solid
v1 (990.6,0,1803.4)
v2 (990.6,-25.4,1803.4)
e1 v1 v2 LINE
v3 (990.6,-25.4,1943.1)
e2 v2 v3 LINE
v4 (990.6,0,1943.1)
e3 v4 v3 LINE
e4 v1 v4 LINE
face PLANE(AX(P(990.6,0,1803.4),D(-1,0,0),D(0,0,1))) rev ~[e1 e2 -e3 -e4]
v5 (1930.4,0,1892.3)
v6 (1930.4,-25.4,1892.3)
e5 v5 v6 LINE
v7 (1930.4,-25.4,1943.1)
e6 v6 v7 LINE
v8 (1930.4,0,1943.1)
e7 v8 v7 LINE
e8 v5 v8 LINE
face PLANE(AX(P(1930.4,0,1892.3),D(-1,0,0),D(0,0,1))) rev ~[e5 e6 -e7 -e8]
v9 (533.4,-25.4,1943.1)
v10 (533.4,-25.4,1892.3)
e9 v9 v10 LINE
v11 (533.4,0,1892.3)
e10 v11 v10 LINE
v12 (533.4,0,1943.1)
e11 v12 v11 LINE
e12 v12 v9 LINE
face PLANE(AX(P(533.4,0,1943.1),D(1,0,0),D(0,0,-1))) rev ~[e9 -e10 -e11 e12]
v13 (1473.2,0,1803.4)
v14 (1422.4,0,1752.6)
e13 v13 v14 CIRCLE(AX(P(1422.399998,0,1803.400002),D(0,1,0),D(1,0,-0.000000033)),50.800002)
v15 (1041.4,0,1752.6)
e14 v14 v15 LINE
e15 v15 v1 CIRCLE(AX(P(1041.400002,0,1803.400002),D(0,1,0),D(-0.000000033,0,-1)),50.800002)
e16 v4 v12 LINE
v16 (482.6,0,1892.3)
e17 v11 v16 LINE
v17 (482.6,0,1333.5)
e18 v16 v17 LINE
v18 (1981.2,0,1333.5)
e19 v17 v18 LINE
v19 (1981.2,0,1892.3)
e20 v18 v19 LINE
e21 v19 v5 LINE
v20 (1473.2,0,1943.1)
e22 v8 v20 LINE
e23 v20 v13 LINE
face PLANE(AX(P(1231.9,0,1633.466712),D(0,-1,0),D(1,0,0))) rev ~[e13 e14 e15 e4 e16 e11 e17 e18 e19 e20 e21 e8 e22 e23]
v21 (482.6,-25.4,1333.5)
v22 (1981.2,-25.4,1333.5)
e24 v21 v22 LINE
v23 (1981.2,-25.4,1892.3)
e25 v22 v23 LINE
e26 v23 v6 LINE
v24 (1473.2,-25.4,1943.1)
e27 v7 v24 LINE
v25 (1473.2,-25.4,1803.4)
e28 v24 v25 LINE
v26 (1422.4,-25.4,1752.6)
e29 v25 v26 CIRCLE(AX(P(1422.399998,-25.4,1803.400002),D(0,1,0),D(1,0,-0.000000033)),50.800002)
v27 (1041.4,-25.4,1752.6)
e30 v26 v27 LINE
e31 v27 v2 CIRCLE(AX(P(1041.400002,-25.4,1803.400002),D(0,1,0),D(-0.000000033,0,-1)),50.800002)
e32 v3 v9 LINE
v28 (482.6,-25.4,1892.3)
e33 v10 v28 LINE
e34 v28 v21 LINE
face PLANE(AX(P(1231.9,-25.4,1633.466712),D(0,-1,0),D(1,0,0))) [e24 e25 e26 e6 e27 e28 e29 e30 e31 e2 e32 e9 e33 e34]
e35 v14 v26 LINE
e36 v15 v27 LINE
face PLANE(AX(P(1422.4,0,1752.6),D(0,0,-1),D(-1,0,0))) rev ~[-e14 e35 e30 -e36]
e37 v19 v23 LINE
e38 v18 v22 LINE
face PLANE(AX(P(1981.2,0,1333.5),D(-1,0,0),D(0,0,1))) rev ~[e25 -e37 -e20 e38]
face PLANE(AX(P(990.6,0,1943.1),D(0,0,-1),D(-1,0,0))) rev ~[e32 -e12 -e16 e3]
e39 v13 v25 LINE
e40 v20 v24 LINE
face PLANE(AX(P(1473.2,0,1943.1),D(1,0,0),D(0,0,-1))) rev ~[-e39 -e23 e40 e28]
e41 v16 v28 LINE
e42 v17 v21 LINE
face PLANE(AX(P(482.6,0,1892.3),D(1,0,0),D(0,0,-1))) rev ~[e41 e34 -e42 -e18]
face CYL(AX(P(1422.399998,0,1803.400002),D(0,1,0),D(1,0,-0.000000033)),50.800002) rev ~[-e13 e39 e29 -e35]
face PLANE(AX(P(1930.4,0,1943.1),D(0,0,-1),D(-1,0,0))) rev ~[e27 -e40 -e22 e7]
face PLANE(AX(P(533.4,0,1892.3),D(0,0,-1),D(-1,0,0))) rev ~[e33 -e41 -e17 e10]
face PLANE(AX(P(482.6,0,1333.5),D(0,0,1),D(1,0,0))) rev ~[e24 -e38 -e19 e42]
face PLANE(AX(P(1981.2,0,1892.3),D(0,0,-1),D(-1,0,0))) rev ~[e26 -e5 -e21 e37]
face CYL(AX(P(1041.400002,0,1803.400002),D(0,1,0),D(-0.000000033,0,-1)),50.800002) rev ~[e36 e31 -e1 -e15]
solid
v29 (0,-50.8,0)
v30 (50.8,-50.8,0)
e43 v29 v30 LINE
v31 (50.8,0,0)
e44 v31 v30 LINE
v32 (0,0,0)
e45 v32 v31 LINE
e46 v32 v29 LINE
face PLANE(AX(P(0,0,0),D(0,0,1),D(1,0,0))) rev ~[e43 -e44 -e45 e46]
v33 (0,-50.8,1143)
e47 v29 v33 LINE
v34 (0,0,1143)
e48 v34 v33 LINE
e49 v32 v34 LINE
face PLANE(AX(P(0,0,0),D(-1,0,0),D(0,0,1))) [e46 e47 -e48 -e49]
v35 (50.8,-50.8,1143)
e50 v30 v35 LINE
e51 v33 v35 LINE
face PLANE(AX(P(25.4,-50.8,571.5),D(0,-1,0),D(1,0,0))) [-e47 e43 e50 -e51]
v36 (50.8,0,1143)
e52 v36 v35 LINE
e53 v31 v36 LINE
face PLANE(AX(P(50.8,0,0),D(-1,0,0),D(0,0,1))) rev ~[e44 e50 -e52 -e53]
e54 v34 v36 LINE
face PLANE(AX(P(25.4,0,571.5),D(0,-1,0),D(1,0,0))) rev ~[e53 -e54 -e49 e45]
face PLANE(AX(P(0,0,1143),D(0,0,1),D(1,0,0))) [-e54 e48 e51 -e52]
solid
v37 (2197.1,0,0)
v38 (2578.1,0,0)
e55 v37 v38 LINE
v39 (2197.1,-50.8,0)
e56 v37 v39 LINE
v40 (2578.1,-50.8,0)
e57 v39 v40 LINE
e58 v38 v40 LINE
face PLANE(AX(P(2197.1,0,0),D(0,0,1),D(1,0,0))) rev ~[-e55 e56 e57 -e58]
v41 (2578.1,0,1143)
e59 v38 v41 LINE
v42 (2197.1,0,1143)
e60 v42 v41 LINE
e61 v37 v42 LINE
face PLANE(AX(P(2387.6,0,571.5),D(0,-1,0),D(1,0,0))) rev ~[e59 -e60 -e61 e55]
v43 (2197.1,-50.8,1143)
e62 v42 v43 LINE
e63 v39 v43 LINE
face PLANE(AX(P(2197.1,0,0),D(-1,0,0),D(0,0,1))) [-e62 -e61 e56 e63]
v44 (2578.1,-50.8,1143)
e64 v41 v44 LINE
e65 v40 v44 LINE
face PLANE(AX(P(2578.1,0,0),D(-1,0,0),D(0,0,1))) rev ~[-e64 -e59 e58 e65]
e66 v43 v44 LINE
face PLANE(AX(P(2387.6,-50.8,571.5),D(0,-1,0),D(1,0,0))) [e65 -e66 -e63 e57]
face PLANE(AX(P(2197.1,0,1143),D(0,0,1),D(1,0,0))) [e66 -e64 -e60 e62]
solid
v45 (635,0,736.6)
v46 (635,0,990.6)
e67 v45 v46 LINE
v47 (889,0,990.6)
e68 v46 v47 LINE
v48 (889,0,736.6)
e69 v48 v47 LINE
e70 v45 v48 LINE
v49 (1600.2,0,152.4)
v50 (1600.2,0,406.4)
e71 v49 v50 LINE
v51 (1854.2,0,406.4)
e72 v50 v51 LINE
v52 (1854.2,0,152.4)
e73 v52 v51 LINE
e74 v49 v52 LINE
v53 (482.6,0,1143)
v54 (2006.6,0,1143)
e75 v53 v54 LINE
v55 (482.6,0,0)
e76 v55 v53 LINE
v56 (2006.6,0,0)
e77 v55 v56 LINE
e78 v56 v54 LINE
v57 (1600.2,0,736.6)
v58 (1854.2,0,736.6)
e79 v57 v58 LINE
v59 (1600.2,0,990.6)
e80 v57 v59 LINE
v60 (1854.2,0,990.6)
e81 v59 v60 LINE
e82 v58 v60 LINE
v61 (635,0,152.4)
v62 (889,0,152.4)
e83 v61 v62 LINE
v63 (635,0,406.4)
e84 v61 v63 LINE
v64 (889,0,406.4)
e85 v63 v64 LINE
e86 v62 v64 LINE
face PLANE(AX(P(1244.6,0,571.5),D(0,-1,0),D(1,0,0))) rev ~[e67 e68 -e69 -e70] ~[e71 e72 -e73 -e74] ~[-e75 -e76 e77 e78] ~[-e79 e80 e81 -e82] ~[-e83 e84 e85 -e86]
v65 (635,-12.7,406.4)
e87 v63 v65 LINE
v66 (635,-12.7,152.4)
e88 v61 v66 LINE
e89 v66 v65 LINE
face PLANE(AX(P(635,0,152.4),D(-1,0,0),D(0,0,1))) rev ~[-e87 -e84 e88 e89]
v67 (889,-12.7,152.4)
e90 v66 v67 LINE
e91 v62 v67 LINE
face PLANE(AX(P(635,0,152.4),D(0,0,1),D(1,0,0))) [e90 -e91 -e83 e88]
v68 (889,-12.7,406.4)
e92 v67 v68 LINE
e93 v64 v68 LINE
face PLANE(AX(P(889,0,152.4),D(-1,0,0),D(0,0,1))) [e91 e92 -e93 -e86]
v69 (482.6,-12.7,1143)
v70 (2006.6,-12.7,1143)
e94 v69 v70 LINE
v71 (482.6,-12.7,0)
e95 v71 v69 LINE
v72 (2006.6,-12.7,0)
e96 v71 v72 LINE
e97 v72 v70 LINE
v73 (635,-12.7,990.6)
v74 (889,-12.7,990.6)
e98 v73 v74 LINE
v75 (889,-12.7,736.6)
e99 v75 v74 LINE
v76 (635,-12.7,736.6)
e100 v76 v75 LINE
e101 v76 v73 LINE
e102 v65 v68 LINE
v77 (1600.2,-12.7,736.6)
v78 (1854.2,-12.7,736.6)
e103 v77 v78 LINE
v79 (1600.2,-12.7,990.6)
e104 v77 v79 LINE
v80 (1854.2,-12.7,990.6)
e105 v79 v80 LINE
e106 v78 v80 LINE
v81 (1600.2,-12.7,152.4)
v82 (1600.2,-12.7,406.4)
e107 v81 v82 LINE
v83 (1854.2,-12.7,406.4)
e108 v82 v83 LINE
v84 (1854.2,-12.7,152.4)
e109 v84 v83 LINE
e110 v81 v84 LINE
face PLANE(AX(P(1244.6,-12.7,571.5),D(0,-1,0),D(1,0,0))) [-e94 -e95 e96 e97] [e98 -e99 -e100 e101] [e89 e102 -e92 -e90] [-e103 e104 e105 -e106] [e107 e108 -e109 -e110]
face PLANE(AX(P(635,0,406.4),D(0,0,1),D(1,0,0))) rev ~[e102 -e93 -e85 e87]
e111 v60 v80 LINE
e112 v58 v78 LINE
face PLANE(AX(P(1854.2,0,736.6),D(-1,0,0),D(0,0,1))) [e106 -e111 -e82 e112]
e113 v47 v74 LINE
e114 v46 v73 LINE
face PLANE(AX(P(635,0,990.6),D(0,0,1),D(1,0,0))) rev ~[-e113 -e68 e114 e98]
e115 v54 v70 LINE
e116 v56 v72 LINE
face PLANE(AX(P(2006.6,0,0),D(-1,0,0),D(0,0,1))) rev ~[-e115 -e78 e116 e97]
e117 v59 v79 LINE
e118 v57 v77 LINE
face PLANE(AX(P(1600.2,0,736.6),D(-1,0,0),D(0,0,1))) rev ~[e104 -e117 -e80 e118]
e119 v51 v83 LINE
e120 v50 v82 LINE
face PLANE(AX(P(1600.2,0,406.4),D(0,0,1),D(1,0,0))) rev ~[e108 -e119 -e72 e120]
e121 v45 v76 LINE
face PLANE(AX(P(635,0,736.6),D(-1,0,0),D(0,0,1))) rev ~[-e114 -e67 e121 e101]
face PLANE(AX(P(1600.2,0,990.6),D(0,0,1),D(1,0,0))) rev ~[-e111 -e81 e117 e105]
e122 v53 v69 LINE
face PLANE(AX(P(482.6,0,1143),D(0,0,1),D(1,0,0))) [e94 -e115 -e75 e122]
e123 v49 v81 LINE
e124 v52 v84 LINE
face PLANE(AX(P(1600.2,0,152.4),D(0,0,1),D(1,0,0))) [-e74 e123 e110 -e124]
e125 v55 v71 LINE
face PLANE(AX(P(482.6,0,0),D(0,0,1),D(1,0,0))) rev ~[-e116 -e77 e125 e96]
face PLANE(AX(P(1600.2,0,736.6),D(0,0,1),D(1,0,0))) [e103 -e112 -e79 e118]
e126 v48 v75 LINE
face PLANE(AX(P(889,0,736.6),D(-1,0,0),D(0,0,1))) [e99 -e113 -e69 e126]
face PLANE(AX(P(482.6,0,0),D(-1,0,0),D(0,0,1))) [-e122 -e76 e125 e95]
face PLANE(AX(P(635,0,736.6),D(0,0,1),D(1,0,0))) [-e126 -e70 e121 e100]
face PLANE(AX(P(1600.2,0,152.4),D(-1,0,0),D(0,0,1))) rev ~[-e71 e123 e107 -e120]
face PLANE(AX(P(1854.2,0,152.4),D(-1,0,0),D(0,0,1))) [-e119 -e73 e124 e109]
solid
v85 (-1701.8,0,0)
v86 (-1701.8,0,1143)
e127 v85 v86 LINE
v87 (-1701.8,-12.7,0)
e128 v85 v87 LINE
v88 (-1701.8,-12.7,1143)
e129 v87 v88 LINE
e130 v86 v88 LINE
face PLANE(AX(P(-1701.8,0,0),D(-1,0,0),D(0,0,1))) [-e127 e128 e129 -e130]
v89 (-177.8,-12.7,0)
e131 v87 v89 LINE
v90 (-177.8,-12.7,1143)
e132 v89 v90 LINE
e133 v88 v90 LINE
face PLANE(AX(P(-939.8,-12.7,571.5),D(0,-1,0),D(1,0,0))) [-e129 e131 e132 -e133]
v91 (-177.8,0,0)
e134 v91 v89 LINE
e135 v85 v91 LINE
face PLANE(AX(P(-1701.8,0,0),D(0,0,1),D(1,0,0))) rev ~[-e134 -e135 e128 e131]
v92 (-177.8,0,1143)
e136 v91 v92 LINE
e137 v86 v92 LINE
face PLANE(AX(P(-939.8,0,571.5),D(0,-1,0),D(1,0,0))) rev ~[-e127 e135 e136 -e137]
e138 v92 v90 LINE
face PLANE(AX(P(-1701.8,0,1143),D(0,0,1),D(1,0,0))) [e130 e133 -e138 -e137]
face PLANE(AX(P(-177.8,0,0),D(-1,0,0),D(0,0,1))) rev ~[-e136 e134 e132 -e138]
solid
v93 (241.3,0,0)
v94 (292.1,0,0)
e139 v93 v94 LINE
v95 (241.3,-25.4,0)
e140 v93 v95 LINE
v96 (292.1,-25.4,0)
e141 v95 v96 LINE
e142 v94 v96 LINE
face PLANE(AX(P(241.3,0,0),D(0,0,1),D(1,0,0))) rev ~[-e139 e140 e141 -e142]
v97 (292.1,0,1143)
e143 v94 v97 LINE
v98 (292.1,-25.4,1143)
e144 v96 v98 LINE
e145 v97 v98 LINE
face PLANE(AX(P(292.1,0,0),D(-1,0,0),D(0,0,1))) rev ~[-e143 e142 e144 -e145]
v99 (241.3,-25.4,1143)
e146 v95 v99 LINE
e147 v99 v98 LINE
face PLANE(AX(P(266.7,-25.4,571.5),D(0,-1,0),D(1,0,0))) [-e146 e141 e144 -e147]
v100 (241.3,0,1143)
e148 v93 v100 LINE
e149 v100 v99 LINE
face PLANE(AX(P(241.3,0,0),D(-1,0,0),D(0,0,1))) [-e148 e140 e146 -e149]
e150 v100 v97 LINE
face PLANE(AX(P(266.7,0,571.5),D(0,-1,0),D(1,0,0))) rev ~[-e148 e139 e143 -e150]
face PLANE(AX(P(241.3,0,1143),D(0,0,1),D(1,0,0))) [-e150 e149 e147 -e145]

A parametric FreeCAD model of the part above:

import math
import FreeCAD as App
import Part
import Sketcher

V = App.Vector
Q = App.Units.Quantity


def add_polygon(sketch, points):
    """Adds a closed chain of lines whose ends are joined by coincident constraints."""
    first, n = sketch.GeometryCount, len(points)
    for a, b in zip(points, points[1:] + points[:1]):
        sketch.addGeometry(Part.LineSegment(App.Vector(*a, 0), App.Vector(*b, 0)), False)
    for i in range(n):
        sketch.addConstraint(Sketcher.Constraint("Coincident", first + i, 2, first + (i + 1) % n, 1))

doc = App.newDocument("Part")
body = doc.addObject("PartDesign::Body", "Body")

sketch1 = body.newObject("Sketcher::SketchObject", "Sketch")
sketch1.AttachmentSupport = (doc.getObject("XZ_Plane"), [""])
sketch1.MapMode = "FlatFace"
add_polygon(sketch1, [(0, 1143), (0, 0), (50.8, 0), (50.8, 1143)])
sketch1.addConstraint([
    Sketcher.Constraint("Vertical", 0),
    Sketcher.Constraint("Horizontal", 1),
    Sketcher.Constraint("Vertical", 2),
    Sketcher.Constraint("Horizontal", 3),
    Sketcher.Constraint("Coincident", 0, 2, -1, 1),
    Sketcher.Constraint("DistanceX", 1, 1, 1, 2, Q("2 in")),
    Sketcher.Constraint("DistanceY", 0, 2, 0, 1, Q("45 in")),
])
pad1 = body.newObject("PartDesign::Pad", "Pad")
pad1.Profile = sketch1
pad1.Length = Q("2 in")
body2 = doc.addObject("PartDesign::Body", "Body001")

sketch2 = body2.newObject("Sketcher::SketchObject", "Sketch001")
sketch2.AttachmentSupport = (doc.getObject("XZ_Plane001"), [""])
sketch2.MapMode = "FlatFace"
add_polygon(sketch2, [(241.3, 1143), (241.3, 0), (292.1, 0), (292.1, 1143)])
sketch2.addConstraint([
    Sketcher.Constraint("Vertical", 0),
    Sketcher.Constraint("Horizontal", 1),
    Sketcher.Constraint("Vertical", 2),
    Sketcher.Constraint("Horizontal", 3),
    Sketcher.Constraint("PointOnObject", 0, 2, -1),
    Sketcher.Constraint("DistanceX", 1, 1, 1, 2, Q("2 in")),
    Sketcher.Constraint("DistanceY", 0, 2, 0, 1, Q("45 in")),
    Sketcher.Constraint("DistanceX", -1, 1, 0, 2, Q("9.5 in")),
])
pad2 = body2.newObject("PartDesign::Pad", "Pad001")
pad2.Profile = sketch2
pad2.Length = Q("1 in")
body3 = doc.addObject("PartDesign::Body", "Body002")

sketch3 = body3.newObject("Sketcher::SketchObject", "Sketch002")
sketch3.AttachmentSupport = (doc.getObject("XZ_Plane002"), [""])
sketch3.MapMode = "FlatFace"
add_polygon(sketch3, [(-1701.8, 1143), (-1701.8, 0), (-177.8, 0), (-177.8, 1143)])
sketch3.addConstraint([
    Sketcher.Constraint("Vertical", 0),
    Sketcher.Constraint("Horizontal", 1),
    Sketcher.Constraint("Vertical", 2),
    Sketcher.Constraint("Horizontal", 3),
    Sketcher.Constraint("PointOnObject", 0, 2, -1),
    Sketcher.Constraint("DistanceX", 1, 1, 1, 2, Q("60 in")),
    Sketcher.Constraint("DistanceY", 0, 2, 0, 1, Q("45 in")),
    Sketcher.Constraint("DistanceX", 0, 2, -1, 1, Q("67 in")),
])
pad3 = body3.newObject("PartDesign::Pad", "Pad002")
pad3.Profile = sketch3
pad3.Length = Q("0.5 in")
body4 = doc.addObject("PartDesign::Body", "Body003")

sketch4 = body4.newObject("Sketcher::SketchObject", "Sketch003")
sketch4.AttachmentSupport = (doc.getObject("XZ_Plane003"), [""])
sketch4.MapMode = "FlatFace"
add_polygon(sketch4, [(482.6, 1143), (482.6, 0), (2006.6, 0), (2006.6, 1143)])
add_polygon(sketch4, [(889, 152.4), (635, 152.4), (635, 406.4), (889, 406.4)])
add_polygon(sketch4, [(1854.2, 152.4), (1600.2, 152.4), (1600.2, 406.4), (1854.2, 406.4)])
add_polygon(sketch4, [(889, 736.6), (635, 736.6), (635, 990.6), (889, 990.6)])
add_polygon(sketch4, [(1854.2, 736.6), (1600.2, 736.6), (1600.2, 990.6), (1854.2, 990.6)])
sketch4.addConstraint([
    Sketcher.Constraint("Vertical", 0),
    Sketcher.Constraint("Horizontal", 1),
    Sketcher.Constraint("Vertical", 2),
    Sketcher.Constraint("Horizontal", 3),
    Sketcher.Constraint("Horizontal", 4),
    Sketcher.Constraint("Vertical", 5),
    Sketcher.Constraint("Horizontal", 6),
    Sketcher.Constraint("Vertical", 7),
    Sketcher.Constraint("Horizontal", 8),
    Sketcher.Constraint("Vertical", 9),
    Sketcher.Constraint("Horizontal", 10),
    Sketcher.Constraint("Vertical", 11),
    Sketcher.Constraint("Horizontal", 12),
    Sketcher.Constraint("Vertical", 13),
    Sketcher.Constraint("Horizontal", 14),
    Sketcher.Constraint("Vertical", 15),
    Sketcher.Constraint("Horizontal", 16),
    Sketcher.Constraint("Vertical", 17),
    Sketcher.Constraint("Horizontal", 18),
    Sketcher.Constraint("Vertical", 19),
    Sketcher.Constraint("PointOnObject", 0, 2, -1),
    Sketcher.Constraint("Horizontal", 7, 2, 8, 2),
    Sketcher.Constraint("Horizontal", 6, 2, 9, 2),
    Sketcher.Constraint("Horizontal", 15, 2, 16, 2),
    Sketcher.Constraint("Horizontal", 14, 2, 17, 2),
    Sketcher.Constraint("Vertical", 5, 2, 12, 2),
    Sketcher.Constraint("Vertical", 7, 2, 14, 2),
    Sketcher.Constraint("Vertical", 9, 2, 16, 2),
    Sketcher.Constraint("Vertical", 11, 2, 18, 2),
    Sketcher.Constraint("Equal", 6, 8),
    Sketcher.Constraint("Equal", 18, 5),
    Sketcher.Constraint("Equal", 11, 13),
    Sketcher.Constraint("DistanceX", 1, 1, 1, 2, Q("60 in")),
    Sketcher.Constraint("DistanceX", 4, 2, 4, 1, Q("10 in")),
    Sketcher.Constraint("DistanceY", 0, 2, 0, 1, Q("45 in")),
    Sketcher.Constraint("DistanceX", -1, 1, 0, 2, Q("19 in")),
    Sketcher.Constraint("DistanceX", -1, 1, 4, 2, Q("25 in")),
    Sketcher.Constraint("DistanceY", -1, 1, 4, 2, Q("6 in")),
    Sketcher.Constraint("DistanceX", -1, 1, 8, 2, Q("63 in")),
    Sketcher.Constraint("DistanceY", -1, 1, 12, 2, Q("29 in")),
])
pad4 = body4.newObject("PartDesign::Pad", "Pad003")
pad4.Profile = sketch4
pad4.Length = Q("0.5 in")
body5 = doc.addObject("PartDesign::Body", "Body004")

sketch5 = body5.newObject("Sketcher::SketchObject", "Sketch004")
sketch5.AttachmentSupport = (doc.getObject("XZ_Plane004"), [""])
sketch5.MapMode = "FlatFace"
sketch5.addGeometry([
    Part.LineSegment(V(482.6, 1892.3, 0), V(482.6, 1333.5, 0)),
    Part.LineSegment(V(482.6, 1333.5, 0), V(1981.2, 1333.5, 0)),
    Part.LineSegment(V(1981.2, 1333.5, 0), V(1981.2, 1892.3, 0)),
    Part.LineSegment(V(1981.2, 1892.3, 0), V(1930.4, 1892.3, 0)),
    Part.LineSegment(V(1930.4, 1892.3, 0), V(1930.4, 1943.1, 0)),
    Part.LineSegment(V(1930.4, 1943.1, 0), V(1473.2, 1943.1, 0)),
    Part.LineSegment(V(1473.2, 1943.1, 0), V(1473.2, 1803.4, 0)),
    Part.ArcOfCircle(Part.Circle(V(1422.399998, 1803.400002, 0), V(0, 0, 1), 50.800002), math.radians(-89.999998), math.radians(-0.000002)),
    Part.LineSegment(V(1422.4, 1752.6, 0), V(1041.4, 1752.6, 0)),
    Part.ArcOfCircle(Part.Circle(V(1041.400002, 1803.400002, 0), V(0, 0, 1), 50.800002), math.radians(-179.999998), math.radians(-90.000002)),
    Part.LineSegment(V(990.6, 1803.4, 0), V(990.6, 1943.1, 0)),
    Part.LineSegment(V(990.6, 1943.1, 0), V(533.4, 1943.1, 0)),
    Part.LineSegment(V(533.4, 1943.1, 0), V(533.4, 1892.3, 0)),
    Part.LineSegment(V(533.4, 1892.3, 0), V(482.6, 1892.3, 0)),
], False)
sketch5.addConstraint([
    Sketcher.Constraint("Coincident", 0, 2, 1, 1),
    Sketcher.Constraint("Coincident", 1, 2, 2, 1),
    Sketcher.Constraint("Coincident", 2, 2, 3, 1),
    Sketcher.Constraint("Coincident", 3, 2, 4, 1),
    Sketcher.Constraint("Coincident", 4, 2, 5, 1),
    Sketcher.Constraint("Coincident", 5, 2, 6, 1),
    Sketcher.Constraint("Tangent", 6, 2, 7, 2),
    Sketcher.Constraint("Tangent", 7, 1, 8, 1),
    Sketcher.Constraint("Tangent", 8, 2, 9, 2),
    Sketcher.Constraint("Tangent", 9, 1, 10, 1),
    Sketcher.Constraint("Coincident", 10, 2, 11, 1),
    Sketcher.Constraint("Coincident", 11, 2, 12, 1),
    Sketcher.Constraint("Coincident", 12, 2, 13, 1),
    Sketcher.Constraint("Coincident", 13, 2, 0, 1),
    Sketcher.Constraint("Vertical", 0),
    Sketcher.Constraint("Horizontal", 1),
    Sketcher.Constraint("Vertical", 2),
    Sketcher.Constraint("Horizontal", 3),
    Sketcher.Constraint("Vertical", 4),
    Sketcher.Constraint("Horizontal", 5),
    Sketcher.Constraint("Vertical", 6),
    Sketcher.Constraint("Horizontal", 8),
    Sketcher.Constraint("Vertical", 10),
    Sketcher.Constraint("Horizontal", 11),
    Sketcher.Constraint("Vertical", 12),
    Sketcher.Constraint("Horizontal", 13),
    Sketcher.Constraint("Equal", 7, 9),
    Sketcher.Constraint("Horizontal", 5, 2, 10, 2),
    Sketcher.Constraint("Horizontal", 3, 2, 12, 2),
    Sketcher.Constraint("Equal", 5, 11),
    Sketcher.Constraint("Equal", 3, 13),
    Sketcher.Constraint("Equal", 13, 4),
    Sketcher.Constraint("Radius", 7, Q("2.0000001 in")),
    Sketcher.Constraint("DistanceX", 1, 1, 1, 2, Q("59 in")),
    Sketcher.Constraint("DistanceX", 3, 2, 3, 1, Q("2 in")),
    Sketcher.Constraint("DistanceX", 5, 2, 5, 1, Q("18 in")),
    Sketcher.Constraint("DistanceY", 0, 2, 0, 1, Q("22 in")),
    Sketcher.Constraint("DistanceY", 6, 2, 6, 1, Q("5.5 in")),
    Sketcher.Constraint("DistanceX", -1, 1, 7, 3, Q("55.9999999 in")),
    Sketcher.Constraint("DistanceY", -1, 1, 7, 3, Q("71.0000001 in")),
])
pad5 = body5.newObject("PartDesign::Pad", "Pad004")
pad5.Profile = sketch5
pad5.Length = Q("1 in")
body6 = doc.addObject("PartDesign::Body", "Body005")

sketch6 = body6.newObject("Sketcher::SketchObject", "Sketch005")
sketch6.AttachmentSupport = (doc.getObject("XZ_Plane005"), [""])
sketch6.MapMode = "FlatFace"
add_polygon(sketch6, [(2197.1, 1143), (2197.1, 0), (2578.1, 0), (2578.1, 1143)])
sketch6.addConstraint([
    Sketcher.Constraint("Vertical", 0),
    Sketcher.Constraint("Horizontal", 1),
    Sketcher.Constraint("Vertical", 2),
    Sketcher.Constraint("Horizontal", 3),
    Sketcher.Constraint("PointOnObject", 0, 2, -1),
    Sketcher.Constraint("DistanceX", 1, 1, 1, 2, Q("15 in")),
    Sketcher.Constraint("DistanceY", 0, 2, 0, 1, Q("45 in")),
    Sketcher.Constraint("DistanceX", -1, 1, 0, 2, Q("86.5 in")),
])
pad6 = body6.newObject("PartDesign::Pad", "Pad005")
pad6.Profile = sketch6
pad6.Length = Q("2 in")

doc.recompute()
